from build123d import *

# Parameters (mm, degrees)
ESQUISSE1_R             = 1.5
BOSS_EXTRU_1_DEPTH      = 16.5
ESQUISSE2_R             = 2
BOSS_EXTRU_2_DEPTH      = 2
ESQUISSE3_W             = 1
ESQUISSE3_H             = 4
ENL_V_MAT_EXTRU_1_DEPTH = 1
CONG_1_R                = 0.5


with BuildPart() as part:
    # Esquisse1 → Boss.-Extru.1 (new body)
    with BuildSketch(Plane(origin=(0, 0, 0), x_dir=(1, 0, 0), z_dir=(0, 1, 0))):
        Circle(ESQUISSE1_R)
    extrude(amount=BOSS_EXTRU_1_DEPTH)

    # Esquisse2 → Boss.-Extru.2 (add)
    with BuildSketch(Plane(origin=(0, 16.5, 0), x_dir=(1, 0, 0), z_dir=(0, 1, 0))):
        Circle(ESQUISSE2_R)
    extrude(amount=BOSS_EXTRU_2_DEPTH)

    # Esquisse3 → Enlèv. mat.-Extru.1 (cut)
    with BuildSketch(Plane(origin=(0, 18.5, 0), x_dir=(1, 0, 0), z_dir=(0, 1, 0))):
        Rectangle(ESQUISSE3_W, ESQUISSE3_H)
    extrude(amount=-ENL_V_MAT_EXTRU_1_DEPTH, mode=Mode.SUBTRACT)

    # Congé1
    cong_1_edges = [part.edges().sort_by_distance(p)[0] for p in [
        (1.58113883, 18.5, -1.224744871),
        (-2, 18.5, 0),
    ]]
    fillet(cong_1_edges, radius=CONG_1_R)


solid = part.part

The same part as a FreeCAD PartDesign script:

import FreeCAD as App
import Part
import Sketcher
from FreeCAD import Vector


def edges_at(feature, points):
    """Names of the edges that pass closest to the given points."""
    edges = feature.Shape.Edges
    near = lambda p: min(range(len(edges)), key=lambda i: edges[i].distToShape(Part.Vertex(*p))[0])
    return sorted({f"Edge{near(p) + 1}" for p in points})


def add_polygon(sketch, points):
    """Adds a closed chain of lines whose ends are joined by coincident constraints."""
    first, n = sketch.GeometryCount, len(points)
    for a, b in zip(points, points[1:] + points[:1]):
        sketch.addGeometry(Part.LineSegment(App.Vector(*a, 0), App.Vector(*b, 0)), False)
    for i in range(n):
        sketch.addConstraint(Sketcher.Constraint("Coincident", first + i, 2, first + (i + 1) % n, 1))

doc = App.newDocument("Part")
body = doc.addObject("PartDesign::Body", "Body")

sketch1 = doc.addObject("Sketcher::SketchObject", "Sketch")
body.addObject(sketch1)
sketch1.AttachmentSupport = (doc.XZ_Plane, [""])
sketch1.MapMode = "FlatFace"
sketch1.addGeometry(Part.Circle(Vector(0, 0, 0), Vector(0, 0, 1), 1.5), False)
sketch1.addConstraint([
    Sketcher.Constraint("Coincident", 0, 3, -1, 1),
    Sketcher.Constraint("Diameter", 0, 3.0),
])
pad1 = doc.addObject("PartDesign::Pad", "Pad")
body.addObject(pad1)
pad1.Profile = sketch1
pad1.Length = 16.5
pad1.Reversed = True

sketch2 = doc.addObject("Sketcher::SketchObject", "Sketch001")
body.addObject(sketch2)
sketch2.AttachmentSupport = (doc.XZ_Plane, [""])
sketch2.MapMode = "FlatFace"
sketch2.AttachmentOffset = App.Placement(Vector(0, 0, -16.5), App.Rotation())
sketch2.addGeometry(Part.Circle(Vector(0, 0, 0), Vector(0, 0, 1), 2), False)
sketch2.addConstraint([
    Sketcher.Constraint("Coincident", 0, 3, -1, 1),
    Sketcher.Constraint("Diameter", 0, 4.0),
])
pad2 = doc.addObject("PartDesign::Pad", "Pad001")
body.addObject(pad2)
pad2.Profile = sketch2
pad2.Length = 2
pad2.Reversed = True

sketch3 = doc.addObject("Sketcher::SketchObject", "Sketch002")
body.addObject(sketch3)
sketch3.AttachmentSupport = (doc.XZ_Plane, [""])
sketch3.MapMode = "FlatFace"
sketch3.AttachmentOffset = App.Placement(Vector(0, 0, -18.5), App.Rotation())
add_polygon(sketch3, [(-0.5, -2), (-0.5, 2), (0.5, 2), (0.5, -2)])
sketch3.addConstraint([
    Sketcher.Constraint("Vertical", 0),
    Sketcher.Constraint("Horizontal", 1),
    Sketcher.Constraint("Vertical", 2),
    Sketcher.Constraint("Horizontal", 3),
    Sketcher.Constraint("Symmetric", 0, 2, 2, 2, -1, 1),
    Sketcher.Constraint("DistanceX", 1, 1, 1, 2, 1.0),
    Sketcher.Constraint("DistanceY", 0, 1, 0, 2, 4.0),
])
pocket1 = doc.addObject("PartDesign::Pocket", "Pocket")
body.addObject(pocket1)
pocket1.Profile = sketch3
pocket1.Length = 1
pocket1.Reversed = True
doc.recompute()

fillet = doc.addObject("PartDesign::Fillet", "Fillet")
body.addObject(fillet)
fillet.Base = (pocket1, edges_at(pocket1, [(1.581, 18.5, -1.225), (-2, 18.5, 0)]))
fillet.Radius = 0.5

doc.recompute()
